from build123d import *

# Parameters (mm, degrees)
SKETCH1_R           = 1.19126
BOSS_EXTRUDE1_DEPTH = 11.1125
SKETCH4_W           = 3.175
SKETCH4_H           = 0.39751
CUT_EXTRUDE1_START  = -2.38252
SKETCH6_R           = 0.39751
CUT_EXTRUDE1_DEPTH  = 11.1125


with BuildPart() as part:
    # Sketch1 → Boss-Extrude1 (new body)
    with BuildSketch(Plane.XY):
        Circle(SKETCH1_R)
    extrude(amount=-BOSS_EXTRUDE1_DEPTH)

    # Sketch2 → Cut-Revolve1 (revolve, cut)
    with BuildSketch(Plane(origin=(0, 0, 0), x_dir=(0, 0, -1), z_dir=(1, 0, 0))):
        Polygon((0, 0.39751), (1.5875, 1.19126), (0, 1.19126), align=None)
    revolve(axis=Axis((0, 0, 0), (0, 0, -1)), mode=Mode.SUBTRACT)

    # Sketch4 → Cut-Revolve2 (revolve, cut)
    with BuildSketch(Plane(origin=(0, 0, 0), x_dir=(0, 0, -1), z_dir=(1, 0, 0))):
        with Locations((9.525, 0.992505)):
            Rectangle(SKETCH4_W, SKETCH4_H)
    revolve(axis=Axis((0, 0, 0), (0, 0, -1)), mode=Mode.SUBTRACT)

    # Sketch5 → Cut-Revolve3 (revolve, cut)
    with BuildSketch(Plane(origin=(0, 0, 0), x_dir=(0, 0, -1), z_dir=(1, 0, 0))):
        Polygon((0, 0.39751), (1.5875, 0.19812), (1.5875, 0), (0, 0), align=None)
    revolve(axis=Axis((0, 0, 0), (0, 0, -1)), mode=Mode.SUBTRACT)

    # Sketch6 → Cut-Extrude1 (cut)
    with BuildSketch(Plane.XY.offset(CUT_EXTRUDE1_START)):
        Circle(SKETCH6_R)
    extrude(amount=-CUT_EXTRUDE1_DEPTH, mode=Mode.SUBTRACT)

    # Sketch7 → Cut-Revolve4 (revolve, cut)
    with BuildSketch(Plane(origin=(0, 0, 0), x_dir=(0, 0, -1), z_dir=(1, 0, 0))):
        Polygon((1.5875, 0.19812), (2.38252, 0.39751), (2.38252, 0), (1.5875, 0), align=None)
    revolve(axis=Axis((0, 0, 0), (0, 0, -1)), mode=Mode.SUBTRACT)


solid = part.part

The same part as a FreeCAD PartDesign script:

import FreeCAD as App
import Part
import Sketcher

V = App.Vector
Q = App.Units.Quantity

doc = App.newDocument("Part")
body = doc.addObject("PartDesign::Body", "Body")

# Sketch on XY plane
sketch1 = body.newObject("Sketcher::SketchObject", "Sketch")
sketch1.AttachmentSupport = (doc.getObject("XY_Plane"), [""])
sketch1.MapMode = "FlatFace"
sketch1.addGeometry(Part.Circle(V(0, 0, 0), V(0, 0, 1), 1.2), False)
sketch1.addConstraint(Sketcher.Constraint("Coincident", 0, 3, -1, 1))
sketch1.addConstraint(Sketcher.Constraint("Diameter", 0, Q("0.0938 in")))
pad1 = body.newObject("PartDesign::Pad", "Pad")
pad1.Profile = sketch1
pad1.Length = Q("0.4375 in")
pad1.Reversed = True

# Sketch on YZ plane
sketch2 = body.newObject("Sketcher::SketchObject", "Sketch001")
sketch2.AttachmentSupport = (doc.getObject("YZ_Plane"), [""])
sketch2.MapMode = "FlatFace"
sketch2.addGeometry(Part.LineSegment(V(0.4, 0, 0), V(1.2, -1.6, 0)), False)
sketch2.addGeometry(Part.LineSegment(V(1.2, -1.6, 0), V(1.2, 0, 0)), False)
sketch2.addGeometry(Part.LineSegment(V(1.2, 0, 0), V(0.4, 0, 0)), False)
sketch2.addConstraint(Sketcher.Constraint("Coincident", 0, 2, 1, 1))
sketch2.addConstraint(Sketcher.Constraint("Coincident", 1, 2, 2, 1))
sketch2.addConstraint(Sketcher.Constraint("Coincident", 2, 2, 0, 1))
sketch2.addConstraint(Sketcher.Constraint("Vertical", 1))
sketch2.addConstraint(Sketcher.Constraint("Horizontal", 2))
sketch2.addConstraint(Sketcher.Constraint("PointOnObject", 1, 2, -1))
sketch2.addConstraint(Sketcher.Constraint("DistanceX", 2, 2, 2, 1, Q("0.03125 in")))
sketch2.addConstraint(Sketcher.Constraint("DistanceY", 1, 1, 1, 2, Q("0.0625 in")))
sketch2.addConstraint(Sketcher.Constraint("DistanceX", -1, 1, 0, 2, Q("0.0469 in")))
groove = body.newObject("PartDesign::Groove", "Groove")
groove.Profile = sketch2
groove.ReferenceAxis = (sketch2, ["V_Axis"])
groove.Angle = 360

# Sketch on YZ plane
sketch3 = body.newObject("Sketcher::SketchObject", "Sketch002")
sketch3.AttachmentSupport = (doc.getObject("YZ_Plane"), [""])
sketch3.MapMode = "FlatFace"
sketch3.addGeometry(Part.LineSegment(V(1.19, -7.94, 0), V(0.79, -7.94, 0)), False)
sketch3.addGeometry(Part.LineSegment(V(0.79, -7.94, 0), V(0.79, -11.11, 0)), False)
sketch3.addGeometry(Part.LineSegment(V(0.79, -11.11, 0), V(1.19, -11.11, 0)), False)
sketch3.addGeometry(Part.LineSegment(V(1.19, -11.11, 0), V(1.19, -7.94, 0)), False)
sketch3.addConstraint(Sketcher.Constraint("Coincident", 0, 2, 1, 1))
sketch3.addConstraint(Sketcher.Constraint("Coincident", 1, 2, 2, 1))
sketch3.addConstraint(Sketcher.Constraint("Coincident", 2, 2, 3, 1))
sketch3.addConstraint(Sketcher.Constraint("Coincident", 3, 2, 0, 1))
sketch3.addConstraint(Sketcher.Constraint("Horizontal", 0))
sketch3.addConstraint(Sketcher.Constraint("Vertical", 1))
sketch3.addConstraint(Sketcher.Constraint("Horizontal", 2))
sketch3.addConstraint(Sketcher.Constraint("Vertical", 3))
sketch3.addConstraint(Sketcher.Constraint("DistanceY", 1, 2, 1, 1, Q("0.125 in")))
sketch3.addConstraint(Sketcher.Constraint("DistanceX", -1, 1, 0, 2, Q("0.03125 in")))
sketch3.addConstraint(Sketcher.Constraint("DistanceY", 0, 2, -1, 1, Q("0.3125 in")))
sketch3.addConstraint(Sketcher.Constraint("DistanceX", -1, 1, 2, 2, Q("0.0469 in")))
groove2 = body.newObject("PartDesign::Groove", "Groove001")
groove2.Profile = sketch3
groove2.ReferenceAxis = (sketch3, ["V_Axis"])
groove2.Angle = 360

# Sketch on YZ plane
sketch4 = body.newObject("Sketcher::SketchObject", "Sketch003")
sketch4.AttachmentSupport = (doc.getObject("YZ_Plane"), [""])
sketch4.MapMode = "FlatFace"
sketch4.addGeometry(Part.LineSegment(V(0.2, -1.59, 0), V(0.4, 0, 0)), False)
sketch4.addGeometry(Part.LineSegment(V(0.4, 0, 0), V(0, 0, 0)), False)
sketch4.addGeometry(Part.LineSegment(V(0, 0, 0), V(0, -1.59, 0)), False)
sketch4.addGeometry(Part.LineSegment(V(0, -1.59, 0), V(0.2, -1.59, 0)), False)
sketch4.addConstraint(Sketcher.Constraint("Coincident", 0, 2, 1, 1))
sketch4.addConstraint(Sketcher.Constraint("Coincident", 1, 2, 2, 1))
sketch4.addConstraint(Sketcher.Constraint("Coincident", 2, 2, 3, 1))
sketch4.addConstraint(Sketcher.Constraint("Coincident", 3, 2, 0, 1))
sketch4.addConstraint(Sketcher.Constraint("Horizontal", 1))
sketch4.addConstraint(Sketcher.Constraint("Vertical", 2))
sketch4.addConstraint(Sketcher.Constraint("Horizontal", 3))
sketch4.addConstraint(Sketcher.Constraint("Coincident", 1, 2, -1, 1))
sketch4.addConstraint(Sketcher.Constraint("DistanceY", 2, 2, 2, 1, Q("0.0625 in")))
sketch4.addConstraint(Sketcher.Constraint("DistanceX", 3, 1, 3, 2, Q("0.0078 in")))
sketch4.addConstraint(Sketcher.Constraint("DistanceX", 1, 2, 1, 1, 0.39751))
groove3 = body.newObject("PartDesign::Groove", "Groove002")
groove3.Profile = sketch4
groove3.ReferenceAxis = (sketch4, ["V_Axis"])
groove3.Angle = 360

# Sketch on XY plane
sketch5 = body.newObject("Sketcher::SketchObject", "Sketch004")
sketch5.AttachmentSupport = (doc.getObject("XY_Plane"), [""])
sketch5.MapMode = "FlatFace"
sketch5.AttachmentOffset = App.Placement(V(0, 0, -0.0938 * 25.4), App.Rotation())
sketch5.addGeometry(Part.Circle(V(0, 0, 0), V(0, 0, 1), 0.4), False)
sketch5.addConstraint(Sketcher.Constraint("Coincident", 0, 3, -1, 1))
sketch5.addConstraint(Sketcher.Constraint("Diameter", 0, Q("0.0313 in")))
pocket1 = body.newObject("PartDesign::Pocket", "Pocket")
pocket1.Profile = sketch5
pocket1.Length = Q("0.4375 in")

# Sketch on YZ plane
sketch6 = body.newObject("Sketcher::SketchObject", "Sketch005")
sketch6.AttachmentSupport = (doc.getObject("YZ_Plane"), [""])
sketch6.MapMode = "FlatFace"
sketch6.addGeometry(Part.LineSegment(V(0.4, -2.38, 0), V(0.2, -1.59, 0)), False)
sketch6.addGeometry(Part.LineSegment(V(0.2, -1.59, 0), V(0, -1.59, 0)), False)
sketch6.addGeometry(Part.LineSegment(V(0, -1.59, 0), V(0, -2.38, 0)), False)
sketch6.addGeometry(Part.LineSegment(V(0, -2.38, 0), V(0.4, -2.38, 0)), False)
sketch6.addConstraint(Sketcher.Constraint("Coincident", 0, 2, 1, 1))
sketch6.addConstraint(Sketcher.Constraint("Coincident", 1, 2, 2, 1))
sketch6.addConstraint(Sketcher.Constraint("Coincident", 2, 2, 3, 1))
sketch6.addConstraint(Sketcher.Constraint("Coincident", 3, 2, 0, 1))
sketch6.addConstraint(Sketcher.Constraint("Horizontal", 1))
sketch6.addConstraint(Sketcher.Constraint("Vertical", 2))
sketch6.addConstraint(Sketcher.Constraint("Horizontal", 3))
sketch6.addConstraint(Sketcher.Constraint("PointOnObject", 1, 2, -2))
sketch6.addConstraint(Sketcher.Constraint("DistanceX", 1, 2, 1, 1, Q("0.0078 in")))
sketch6.addConstraint(Sketcher.Constraint("DistanceY", 2, 2, 2, 1, Q("0.0313 in")))
sketch6.addConstraint(Sketcher.Constraint("DistanceY", 0, 2, -1, 1, Q("0.0625 in")))
sketch6.addConstraint(Sketcher.Constraint("DistanceX", 3, 1, 3, 2, 0.39751))
groove4 = body.newObject("PartDesign::Groove", "Groove003")
groove4.Profile = sketch6
groove4.ReferenceAxis = (sketch6, ["V_Axis"])
groove4.Angle = 360

doc.recompute()
